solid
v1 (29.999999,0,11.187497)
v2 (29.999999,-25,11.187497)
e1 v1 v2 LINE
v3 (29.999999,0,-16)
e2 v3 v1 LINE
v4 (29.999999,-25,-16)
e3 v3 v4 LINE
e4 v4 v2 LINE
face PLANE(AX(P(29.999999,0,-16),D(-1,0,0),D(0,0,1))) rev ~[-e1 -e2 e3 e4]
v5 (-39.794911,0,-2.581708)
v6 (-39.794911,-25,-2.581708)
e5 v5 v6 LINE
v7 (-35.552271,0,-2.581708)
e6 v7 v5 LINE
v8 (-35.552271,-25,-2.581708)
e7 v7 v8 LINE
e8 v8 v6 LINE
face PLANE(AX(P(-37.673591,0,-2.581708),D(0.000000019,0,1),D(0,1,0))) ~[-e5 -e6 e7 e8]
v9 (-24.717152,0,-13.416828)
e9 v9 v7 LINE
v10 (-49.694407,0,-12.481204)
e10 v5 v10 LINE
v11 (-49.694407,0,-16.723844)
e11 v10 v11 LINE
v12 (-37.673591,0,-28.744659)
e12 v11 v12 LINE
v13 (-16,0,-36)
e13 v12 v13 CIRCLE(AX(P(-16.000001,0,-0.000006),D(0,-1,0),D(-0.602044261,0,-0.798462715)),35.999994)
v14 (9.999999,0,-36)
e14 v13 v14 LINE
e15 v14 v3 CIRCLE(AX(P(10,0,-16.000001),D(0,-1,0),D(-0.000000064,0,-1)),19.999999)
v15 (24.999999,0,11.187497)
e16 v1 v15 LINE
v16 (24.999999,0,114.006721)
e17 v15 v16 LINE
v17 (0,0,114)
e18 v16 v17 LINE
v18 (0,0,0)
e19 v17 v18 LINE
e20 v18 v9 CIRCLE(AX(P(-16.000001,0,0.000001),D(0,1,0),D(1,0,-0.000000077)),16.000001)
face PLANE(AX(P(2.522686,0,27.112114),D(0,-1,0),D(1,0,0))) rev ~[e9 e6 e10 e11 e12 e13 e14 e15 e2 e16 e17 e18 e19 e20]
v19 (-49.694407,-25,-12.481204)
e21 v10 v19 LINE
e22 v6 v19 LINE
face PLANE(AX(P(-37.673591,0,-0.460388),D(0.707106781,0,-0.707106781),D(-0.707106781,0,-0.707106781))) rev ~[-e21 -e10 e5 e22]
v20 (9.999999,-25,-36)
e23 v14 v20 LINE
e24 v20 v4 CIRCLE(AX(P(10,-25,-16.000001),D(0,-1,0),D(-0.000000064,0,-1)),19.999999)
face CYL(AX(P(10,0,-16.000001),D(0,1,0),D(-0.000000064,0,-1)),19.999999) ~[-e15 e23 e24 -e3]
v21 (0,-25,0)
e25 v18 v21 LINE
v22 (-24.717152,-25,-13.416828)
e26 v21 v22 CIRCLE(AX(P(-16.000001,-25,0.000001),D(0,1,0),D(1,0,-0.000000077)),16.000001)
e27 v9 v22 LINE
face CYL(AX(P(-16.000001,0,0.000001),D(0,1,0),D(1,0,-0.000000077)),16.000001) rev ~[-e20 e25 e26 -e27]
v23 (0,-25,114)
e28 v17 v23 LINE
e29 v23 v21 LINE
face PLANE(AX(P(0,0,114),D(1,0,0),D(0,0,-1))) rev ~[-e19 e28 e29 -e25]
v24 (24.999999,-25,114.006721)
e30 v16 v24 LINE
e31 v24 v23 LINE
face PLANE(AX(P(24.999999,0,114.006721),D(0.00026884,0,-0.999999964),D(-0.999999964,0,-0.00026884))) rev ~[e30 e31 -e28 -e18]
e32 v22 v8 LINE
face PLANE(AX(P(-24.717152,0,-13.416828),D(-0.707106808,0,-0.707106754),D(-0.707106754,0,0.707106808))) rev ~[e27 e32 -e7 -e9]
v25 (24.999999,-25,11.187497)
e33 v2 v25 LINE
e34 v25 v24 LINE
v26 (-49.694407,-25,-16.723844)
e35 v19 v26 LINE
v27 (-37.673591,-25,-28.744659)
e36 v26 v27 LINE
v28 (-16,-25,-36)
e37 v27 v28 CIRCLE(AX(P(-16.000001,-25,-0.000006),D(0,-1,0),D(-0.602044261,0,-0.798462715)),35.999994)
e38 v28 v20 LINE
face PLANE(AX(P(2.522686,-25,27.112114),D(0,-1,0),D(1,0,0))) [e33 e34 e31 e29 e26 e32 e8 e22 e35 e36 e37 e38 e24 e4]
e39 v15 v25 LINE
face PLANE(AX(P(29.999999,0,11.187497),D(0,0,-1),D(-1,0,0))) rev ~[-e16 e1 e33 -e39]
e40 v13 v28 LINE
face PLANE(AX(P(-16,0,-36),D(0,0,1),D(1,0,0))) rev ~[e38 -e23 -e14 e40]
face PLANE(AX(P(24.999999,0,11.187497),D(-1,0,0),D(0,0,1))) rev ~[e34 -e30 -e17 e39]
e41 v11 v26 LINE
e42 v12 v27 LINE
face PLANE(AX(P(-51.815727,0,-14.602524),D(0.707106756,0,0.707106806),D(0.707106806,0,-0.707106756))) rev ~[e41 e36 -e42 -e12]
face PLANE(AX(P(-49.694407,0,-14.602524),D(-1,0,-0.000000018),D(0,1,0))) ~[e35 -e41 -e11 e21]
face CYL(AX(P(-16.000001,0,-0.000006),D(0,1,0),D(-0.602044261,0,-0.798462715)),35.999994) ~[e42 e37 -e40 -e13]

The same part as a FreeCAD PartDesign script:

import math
import FreeCAD as App
import Part
import Sketcher

V = App.Vector
Q = App.Units.Quantity


def edges_at(feature, points):
    """Names of the edges that pass closest to the given points."""
    edges = feature.Shape.Edges
    near = lambda p: min(range(len(edges)), key=lambda i: edges[i].distToShape(Part.Vertex(*p))[0])
    return sorted({f"Edge{near(p) + 1}" for p in points})

doc = App.newDocument("Part")
params = doc.addObject("Spreadsheet::Sheet", "Params")
for row, (alias, value) in enumerate([
    ("sketch1_radius", "16.000001 mm"),
    ("sketch1_radius2", "19.999999 mm"),
    ("sketch1_width", "25.999999 mm"),
    ("sketch1_width2", "5 mm"),
    ("sketch1_height", "114 mm"),
    ("pad1_length", "25 mm"),
    ("chamfer_size", "3 mm"),
], start=1):
    params.set(f"A{row}", alias)
    params.set(f"B{row}", "=" + value)
    params.setAlias(f"B{row}", alias)

body = doc.addObject("PartDesign::Body", "Body")

sketch1 = body.newObject("Sketcher::SketchObject", "Sketch")
sketch1.AttachmentSupport = (doc.getObject("XZ_Plane"), [""])
sketch1.MapMode = "FlatFace"
sketch1.addGeometry([
    Part.LineSegment(V(25, 114, 0), V(0, 114, 0)),
    Part.LineSegment(V(0, 114, 0), V(0, 0, 0)),
    Part.ArcOfCircle(Part.Circle(V(-16, 0, 0), V(0, 0, 1), 16), math.radians(-123), math.radians(0)),
    Part.LineSegment(V(-25, -13, 0), V(-38, 0, 0)),
    Part.LineSegment(V(-38, 0, 0), V(-52, -15, 0)),
    Part.LineSegment(V(-52, -15, 0), V(-38, -29, 0)),
    Part.ArcOfCircle(Part.Circle(V(-16, 0, 0), V(0, 0, 1), 36), math.radians(-127), math.radians(-90)),
    Part.LineSegment(V(-16, -36, 0), V(10, -36, 0)),
    Part.ArcOfCircle(Part.Circle(V(10, -16, 0), V(0, 0, 1), 20), math.radians(-90), math.radians(0)),
    Part.LineSegment(V(30, -16, 0), V(30, 11, 0)),
    Part.LineSegment(V(30, 11, 0), V(25, 11, 0)),
    Part.LineSegment(V(25, 11, 0), V(25, 114, 0)),
], False)
sketch1.addConstraint([
    Sketcher.Constraint("Coincident", 0, 2, 1, 1),
    Sketcher.Constraint("Tangent", 1, 2, 2, 2),
    Sketcher.Constraint("Coincident", 2, 1, 3, 1),
    Sketcher.Constraint("Coincident", 3, 2, 4, 1),
    Sketcher.Constraint("Coincident", 4, 2, 5, 1),
    Sketcher.Constraint("Coincident", 5, 2, 6, 1),
    Sketcher.Constraint("Tangent", 6, 2, 7, 1),
    Sketcher.Constraint("Tangent", 7, 2, 8, 1),
    Sketcher.Constraint("Tangent", 8, 2, 9, 1),
    Sketcher.Constraint("Coincident", 9, 2, 10, 1),
    Sketcher.Constraint("Coincident", 10, 2, 11, 1),
    Sketcher.Constraint("Coincident", 11, 2, 0, 1),
    Sketcher.Constraint("Vertical", 1),
    Sketcher.Constraint("Horizontal", 7),
    Sketcher.Constraint("Vertical", 9),
    Sketcher.Constraint("Horizontal", 10),
    Sketcher.Constraint("Vertical", 11),
    Sketcher.Constraint("Coincident", 1, 2, -1, 1),
    Sketcher.Constraint("Coincident", 6, 3, 2, 3),
    Sketcher.Constraint("Perpendicular", 3, 4),
    Sketcher.Constraint("Perpendicular", 4, 5),
    Sketcher.Constraint("Vertical", 3, 2, 5, 2),
    Sketcher.Constraint("Equal", 4, 5),
    Sketcher.Constraint("Radius", 2, Q("16.000001 mm")),
    Sketcher.Constraint("Radius", 8, Q("19.999999 mm")),
    Sketcher.Constraint("DistanceX", 7, 1, 7, 2, Q("25.999999 mm")),
    Sketcher.Constraint("DistanceX", 10, 2, 10, 1, Q("5 mm")),
    Sketcher.Constraint("DistanceY", 1, 2, 1, 1, Q("114 mm")),
    Sketcher.Constraint("Distance", 4, Q("20.000001 mm")),
    Sketcher.Constraint("DistanceY", 8, 3, -1, 1, Q("16.000001 mm")),
    Sketcher.Constraint("DistanceY", 8, 3, 9, 2, Q("27.187498 mm")),
    Sketcher.Constraint("DistanceY", 11, 1, 11, 2, Q("102.819224 mm")),
    Sketcher.Constraint("DistanceY", 2, 1, -1, 1, Q("13.416828 mm")),
])
sketch1.setExpression("Constraints[23]", "Params.sketch1_radius")
sketch1.setExpression("Constraints[24]", "Params.sketch1_radius2")
sketch1.setExpression("Constraints[25]", "Params.sketch1_width")
sketch1.setExpression("Constraints[26]", "Params.sketch1_width2")
sketch1.setExpression("Constraints[27]", "Params.sketch1_height")
pad1 = body.newObject("PartDesign::Pad", "Pad")
pad1.Profile = sketch1
pad1.setExpression("Length", "Params.pad1_length")
doc.recompute()

chamfer = body.newObject("PartDesign::Chamfer", "Chamfer")
chamfer.Base = (pad1, edges_at(pad1, [(-37.674, -12.5, -0.46), (-51.816, -12.5, -14.603)]))
chamfer.setExpression("Size", "Params.chamfer_size")

doc.recompute()
